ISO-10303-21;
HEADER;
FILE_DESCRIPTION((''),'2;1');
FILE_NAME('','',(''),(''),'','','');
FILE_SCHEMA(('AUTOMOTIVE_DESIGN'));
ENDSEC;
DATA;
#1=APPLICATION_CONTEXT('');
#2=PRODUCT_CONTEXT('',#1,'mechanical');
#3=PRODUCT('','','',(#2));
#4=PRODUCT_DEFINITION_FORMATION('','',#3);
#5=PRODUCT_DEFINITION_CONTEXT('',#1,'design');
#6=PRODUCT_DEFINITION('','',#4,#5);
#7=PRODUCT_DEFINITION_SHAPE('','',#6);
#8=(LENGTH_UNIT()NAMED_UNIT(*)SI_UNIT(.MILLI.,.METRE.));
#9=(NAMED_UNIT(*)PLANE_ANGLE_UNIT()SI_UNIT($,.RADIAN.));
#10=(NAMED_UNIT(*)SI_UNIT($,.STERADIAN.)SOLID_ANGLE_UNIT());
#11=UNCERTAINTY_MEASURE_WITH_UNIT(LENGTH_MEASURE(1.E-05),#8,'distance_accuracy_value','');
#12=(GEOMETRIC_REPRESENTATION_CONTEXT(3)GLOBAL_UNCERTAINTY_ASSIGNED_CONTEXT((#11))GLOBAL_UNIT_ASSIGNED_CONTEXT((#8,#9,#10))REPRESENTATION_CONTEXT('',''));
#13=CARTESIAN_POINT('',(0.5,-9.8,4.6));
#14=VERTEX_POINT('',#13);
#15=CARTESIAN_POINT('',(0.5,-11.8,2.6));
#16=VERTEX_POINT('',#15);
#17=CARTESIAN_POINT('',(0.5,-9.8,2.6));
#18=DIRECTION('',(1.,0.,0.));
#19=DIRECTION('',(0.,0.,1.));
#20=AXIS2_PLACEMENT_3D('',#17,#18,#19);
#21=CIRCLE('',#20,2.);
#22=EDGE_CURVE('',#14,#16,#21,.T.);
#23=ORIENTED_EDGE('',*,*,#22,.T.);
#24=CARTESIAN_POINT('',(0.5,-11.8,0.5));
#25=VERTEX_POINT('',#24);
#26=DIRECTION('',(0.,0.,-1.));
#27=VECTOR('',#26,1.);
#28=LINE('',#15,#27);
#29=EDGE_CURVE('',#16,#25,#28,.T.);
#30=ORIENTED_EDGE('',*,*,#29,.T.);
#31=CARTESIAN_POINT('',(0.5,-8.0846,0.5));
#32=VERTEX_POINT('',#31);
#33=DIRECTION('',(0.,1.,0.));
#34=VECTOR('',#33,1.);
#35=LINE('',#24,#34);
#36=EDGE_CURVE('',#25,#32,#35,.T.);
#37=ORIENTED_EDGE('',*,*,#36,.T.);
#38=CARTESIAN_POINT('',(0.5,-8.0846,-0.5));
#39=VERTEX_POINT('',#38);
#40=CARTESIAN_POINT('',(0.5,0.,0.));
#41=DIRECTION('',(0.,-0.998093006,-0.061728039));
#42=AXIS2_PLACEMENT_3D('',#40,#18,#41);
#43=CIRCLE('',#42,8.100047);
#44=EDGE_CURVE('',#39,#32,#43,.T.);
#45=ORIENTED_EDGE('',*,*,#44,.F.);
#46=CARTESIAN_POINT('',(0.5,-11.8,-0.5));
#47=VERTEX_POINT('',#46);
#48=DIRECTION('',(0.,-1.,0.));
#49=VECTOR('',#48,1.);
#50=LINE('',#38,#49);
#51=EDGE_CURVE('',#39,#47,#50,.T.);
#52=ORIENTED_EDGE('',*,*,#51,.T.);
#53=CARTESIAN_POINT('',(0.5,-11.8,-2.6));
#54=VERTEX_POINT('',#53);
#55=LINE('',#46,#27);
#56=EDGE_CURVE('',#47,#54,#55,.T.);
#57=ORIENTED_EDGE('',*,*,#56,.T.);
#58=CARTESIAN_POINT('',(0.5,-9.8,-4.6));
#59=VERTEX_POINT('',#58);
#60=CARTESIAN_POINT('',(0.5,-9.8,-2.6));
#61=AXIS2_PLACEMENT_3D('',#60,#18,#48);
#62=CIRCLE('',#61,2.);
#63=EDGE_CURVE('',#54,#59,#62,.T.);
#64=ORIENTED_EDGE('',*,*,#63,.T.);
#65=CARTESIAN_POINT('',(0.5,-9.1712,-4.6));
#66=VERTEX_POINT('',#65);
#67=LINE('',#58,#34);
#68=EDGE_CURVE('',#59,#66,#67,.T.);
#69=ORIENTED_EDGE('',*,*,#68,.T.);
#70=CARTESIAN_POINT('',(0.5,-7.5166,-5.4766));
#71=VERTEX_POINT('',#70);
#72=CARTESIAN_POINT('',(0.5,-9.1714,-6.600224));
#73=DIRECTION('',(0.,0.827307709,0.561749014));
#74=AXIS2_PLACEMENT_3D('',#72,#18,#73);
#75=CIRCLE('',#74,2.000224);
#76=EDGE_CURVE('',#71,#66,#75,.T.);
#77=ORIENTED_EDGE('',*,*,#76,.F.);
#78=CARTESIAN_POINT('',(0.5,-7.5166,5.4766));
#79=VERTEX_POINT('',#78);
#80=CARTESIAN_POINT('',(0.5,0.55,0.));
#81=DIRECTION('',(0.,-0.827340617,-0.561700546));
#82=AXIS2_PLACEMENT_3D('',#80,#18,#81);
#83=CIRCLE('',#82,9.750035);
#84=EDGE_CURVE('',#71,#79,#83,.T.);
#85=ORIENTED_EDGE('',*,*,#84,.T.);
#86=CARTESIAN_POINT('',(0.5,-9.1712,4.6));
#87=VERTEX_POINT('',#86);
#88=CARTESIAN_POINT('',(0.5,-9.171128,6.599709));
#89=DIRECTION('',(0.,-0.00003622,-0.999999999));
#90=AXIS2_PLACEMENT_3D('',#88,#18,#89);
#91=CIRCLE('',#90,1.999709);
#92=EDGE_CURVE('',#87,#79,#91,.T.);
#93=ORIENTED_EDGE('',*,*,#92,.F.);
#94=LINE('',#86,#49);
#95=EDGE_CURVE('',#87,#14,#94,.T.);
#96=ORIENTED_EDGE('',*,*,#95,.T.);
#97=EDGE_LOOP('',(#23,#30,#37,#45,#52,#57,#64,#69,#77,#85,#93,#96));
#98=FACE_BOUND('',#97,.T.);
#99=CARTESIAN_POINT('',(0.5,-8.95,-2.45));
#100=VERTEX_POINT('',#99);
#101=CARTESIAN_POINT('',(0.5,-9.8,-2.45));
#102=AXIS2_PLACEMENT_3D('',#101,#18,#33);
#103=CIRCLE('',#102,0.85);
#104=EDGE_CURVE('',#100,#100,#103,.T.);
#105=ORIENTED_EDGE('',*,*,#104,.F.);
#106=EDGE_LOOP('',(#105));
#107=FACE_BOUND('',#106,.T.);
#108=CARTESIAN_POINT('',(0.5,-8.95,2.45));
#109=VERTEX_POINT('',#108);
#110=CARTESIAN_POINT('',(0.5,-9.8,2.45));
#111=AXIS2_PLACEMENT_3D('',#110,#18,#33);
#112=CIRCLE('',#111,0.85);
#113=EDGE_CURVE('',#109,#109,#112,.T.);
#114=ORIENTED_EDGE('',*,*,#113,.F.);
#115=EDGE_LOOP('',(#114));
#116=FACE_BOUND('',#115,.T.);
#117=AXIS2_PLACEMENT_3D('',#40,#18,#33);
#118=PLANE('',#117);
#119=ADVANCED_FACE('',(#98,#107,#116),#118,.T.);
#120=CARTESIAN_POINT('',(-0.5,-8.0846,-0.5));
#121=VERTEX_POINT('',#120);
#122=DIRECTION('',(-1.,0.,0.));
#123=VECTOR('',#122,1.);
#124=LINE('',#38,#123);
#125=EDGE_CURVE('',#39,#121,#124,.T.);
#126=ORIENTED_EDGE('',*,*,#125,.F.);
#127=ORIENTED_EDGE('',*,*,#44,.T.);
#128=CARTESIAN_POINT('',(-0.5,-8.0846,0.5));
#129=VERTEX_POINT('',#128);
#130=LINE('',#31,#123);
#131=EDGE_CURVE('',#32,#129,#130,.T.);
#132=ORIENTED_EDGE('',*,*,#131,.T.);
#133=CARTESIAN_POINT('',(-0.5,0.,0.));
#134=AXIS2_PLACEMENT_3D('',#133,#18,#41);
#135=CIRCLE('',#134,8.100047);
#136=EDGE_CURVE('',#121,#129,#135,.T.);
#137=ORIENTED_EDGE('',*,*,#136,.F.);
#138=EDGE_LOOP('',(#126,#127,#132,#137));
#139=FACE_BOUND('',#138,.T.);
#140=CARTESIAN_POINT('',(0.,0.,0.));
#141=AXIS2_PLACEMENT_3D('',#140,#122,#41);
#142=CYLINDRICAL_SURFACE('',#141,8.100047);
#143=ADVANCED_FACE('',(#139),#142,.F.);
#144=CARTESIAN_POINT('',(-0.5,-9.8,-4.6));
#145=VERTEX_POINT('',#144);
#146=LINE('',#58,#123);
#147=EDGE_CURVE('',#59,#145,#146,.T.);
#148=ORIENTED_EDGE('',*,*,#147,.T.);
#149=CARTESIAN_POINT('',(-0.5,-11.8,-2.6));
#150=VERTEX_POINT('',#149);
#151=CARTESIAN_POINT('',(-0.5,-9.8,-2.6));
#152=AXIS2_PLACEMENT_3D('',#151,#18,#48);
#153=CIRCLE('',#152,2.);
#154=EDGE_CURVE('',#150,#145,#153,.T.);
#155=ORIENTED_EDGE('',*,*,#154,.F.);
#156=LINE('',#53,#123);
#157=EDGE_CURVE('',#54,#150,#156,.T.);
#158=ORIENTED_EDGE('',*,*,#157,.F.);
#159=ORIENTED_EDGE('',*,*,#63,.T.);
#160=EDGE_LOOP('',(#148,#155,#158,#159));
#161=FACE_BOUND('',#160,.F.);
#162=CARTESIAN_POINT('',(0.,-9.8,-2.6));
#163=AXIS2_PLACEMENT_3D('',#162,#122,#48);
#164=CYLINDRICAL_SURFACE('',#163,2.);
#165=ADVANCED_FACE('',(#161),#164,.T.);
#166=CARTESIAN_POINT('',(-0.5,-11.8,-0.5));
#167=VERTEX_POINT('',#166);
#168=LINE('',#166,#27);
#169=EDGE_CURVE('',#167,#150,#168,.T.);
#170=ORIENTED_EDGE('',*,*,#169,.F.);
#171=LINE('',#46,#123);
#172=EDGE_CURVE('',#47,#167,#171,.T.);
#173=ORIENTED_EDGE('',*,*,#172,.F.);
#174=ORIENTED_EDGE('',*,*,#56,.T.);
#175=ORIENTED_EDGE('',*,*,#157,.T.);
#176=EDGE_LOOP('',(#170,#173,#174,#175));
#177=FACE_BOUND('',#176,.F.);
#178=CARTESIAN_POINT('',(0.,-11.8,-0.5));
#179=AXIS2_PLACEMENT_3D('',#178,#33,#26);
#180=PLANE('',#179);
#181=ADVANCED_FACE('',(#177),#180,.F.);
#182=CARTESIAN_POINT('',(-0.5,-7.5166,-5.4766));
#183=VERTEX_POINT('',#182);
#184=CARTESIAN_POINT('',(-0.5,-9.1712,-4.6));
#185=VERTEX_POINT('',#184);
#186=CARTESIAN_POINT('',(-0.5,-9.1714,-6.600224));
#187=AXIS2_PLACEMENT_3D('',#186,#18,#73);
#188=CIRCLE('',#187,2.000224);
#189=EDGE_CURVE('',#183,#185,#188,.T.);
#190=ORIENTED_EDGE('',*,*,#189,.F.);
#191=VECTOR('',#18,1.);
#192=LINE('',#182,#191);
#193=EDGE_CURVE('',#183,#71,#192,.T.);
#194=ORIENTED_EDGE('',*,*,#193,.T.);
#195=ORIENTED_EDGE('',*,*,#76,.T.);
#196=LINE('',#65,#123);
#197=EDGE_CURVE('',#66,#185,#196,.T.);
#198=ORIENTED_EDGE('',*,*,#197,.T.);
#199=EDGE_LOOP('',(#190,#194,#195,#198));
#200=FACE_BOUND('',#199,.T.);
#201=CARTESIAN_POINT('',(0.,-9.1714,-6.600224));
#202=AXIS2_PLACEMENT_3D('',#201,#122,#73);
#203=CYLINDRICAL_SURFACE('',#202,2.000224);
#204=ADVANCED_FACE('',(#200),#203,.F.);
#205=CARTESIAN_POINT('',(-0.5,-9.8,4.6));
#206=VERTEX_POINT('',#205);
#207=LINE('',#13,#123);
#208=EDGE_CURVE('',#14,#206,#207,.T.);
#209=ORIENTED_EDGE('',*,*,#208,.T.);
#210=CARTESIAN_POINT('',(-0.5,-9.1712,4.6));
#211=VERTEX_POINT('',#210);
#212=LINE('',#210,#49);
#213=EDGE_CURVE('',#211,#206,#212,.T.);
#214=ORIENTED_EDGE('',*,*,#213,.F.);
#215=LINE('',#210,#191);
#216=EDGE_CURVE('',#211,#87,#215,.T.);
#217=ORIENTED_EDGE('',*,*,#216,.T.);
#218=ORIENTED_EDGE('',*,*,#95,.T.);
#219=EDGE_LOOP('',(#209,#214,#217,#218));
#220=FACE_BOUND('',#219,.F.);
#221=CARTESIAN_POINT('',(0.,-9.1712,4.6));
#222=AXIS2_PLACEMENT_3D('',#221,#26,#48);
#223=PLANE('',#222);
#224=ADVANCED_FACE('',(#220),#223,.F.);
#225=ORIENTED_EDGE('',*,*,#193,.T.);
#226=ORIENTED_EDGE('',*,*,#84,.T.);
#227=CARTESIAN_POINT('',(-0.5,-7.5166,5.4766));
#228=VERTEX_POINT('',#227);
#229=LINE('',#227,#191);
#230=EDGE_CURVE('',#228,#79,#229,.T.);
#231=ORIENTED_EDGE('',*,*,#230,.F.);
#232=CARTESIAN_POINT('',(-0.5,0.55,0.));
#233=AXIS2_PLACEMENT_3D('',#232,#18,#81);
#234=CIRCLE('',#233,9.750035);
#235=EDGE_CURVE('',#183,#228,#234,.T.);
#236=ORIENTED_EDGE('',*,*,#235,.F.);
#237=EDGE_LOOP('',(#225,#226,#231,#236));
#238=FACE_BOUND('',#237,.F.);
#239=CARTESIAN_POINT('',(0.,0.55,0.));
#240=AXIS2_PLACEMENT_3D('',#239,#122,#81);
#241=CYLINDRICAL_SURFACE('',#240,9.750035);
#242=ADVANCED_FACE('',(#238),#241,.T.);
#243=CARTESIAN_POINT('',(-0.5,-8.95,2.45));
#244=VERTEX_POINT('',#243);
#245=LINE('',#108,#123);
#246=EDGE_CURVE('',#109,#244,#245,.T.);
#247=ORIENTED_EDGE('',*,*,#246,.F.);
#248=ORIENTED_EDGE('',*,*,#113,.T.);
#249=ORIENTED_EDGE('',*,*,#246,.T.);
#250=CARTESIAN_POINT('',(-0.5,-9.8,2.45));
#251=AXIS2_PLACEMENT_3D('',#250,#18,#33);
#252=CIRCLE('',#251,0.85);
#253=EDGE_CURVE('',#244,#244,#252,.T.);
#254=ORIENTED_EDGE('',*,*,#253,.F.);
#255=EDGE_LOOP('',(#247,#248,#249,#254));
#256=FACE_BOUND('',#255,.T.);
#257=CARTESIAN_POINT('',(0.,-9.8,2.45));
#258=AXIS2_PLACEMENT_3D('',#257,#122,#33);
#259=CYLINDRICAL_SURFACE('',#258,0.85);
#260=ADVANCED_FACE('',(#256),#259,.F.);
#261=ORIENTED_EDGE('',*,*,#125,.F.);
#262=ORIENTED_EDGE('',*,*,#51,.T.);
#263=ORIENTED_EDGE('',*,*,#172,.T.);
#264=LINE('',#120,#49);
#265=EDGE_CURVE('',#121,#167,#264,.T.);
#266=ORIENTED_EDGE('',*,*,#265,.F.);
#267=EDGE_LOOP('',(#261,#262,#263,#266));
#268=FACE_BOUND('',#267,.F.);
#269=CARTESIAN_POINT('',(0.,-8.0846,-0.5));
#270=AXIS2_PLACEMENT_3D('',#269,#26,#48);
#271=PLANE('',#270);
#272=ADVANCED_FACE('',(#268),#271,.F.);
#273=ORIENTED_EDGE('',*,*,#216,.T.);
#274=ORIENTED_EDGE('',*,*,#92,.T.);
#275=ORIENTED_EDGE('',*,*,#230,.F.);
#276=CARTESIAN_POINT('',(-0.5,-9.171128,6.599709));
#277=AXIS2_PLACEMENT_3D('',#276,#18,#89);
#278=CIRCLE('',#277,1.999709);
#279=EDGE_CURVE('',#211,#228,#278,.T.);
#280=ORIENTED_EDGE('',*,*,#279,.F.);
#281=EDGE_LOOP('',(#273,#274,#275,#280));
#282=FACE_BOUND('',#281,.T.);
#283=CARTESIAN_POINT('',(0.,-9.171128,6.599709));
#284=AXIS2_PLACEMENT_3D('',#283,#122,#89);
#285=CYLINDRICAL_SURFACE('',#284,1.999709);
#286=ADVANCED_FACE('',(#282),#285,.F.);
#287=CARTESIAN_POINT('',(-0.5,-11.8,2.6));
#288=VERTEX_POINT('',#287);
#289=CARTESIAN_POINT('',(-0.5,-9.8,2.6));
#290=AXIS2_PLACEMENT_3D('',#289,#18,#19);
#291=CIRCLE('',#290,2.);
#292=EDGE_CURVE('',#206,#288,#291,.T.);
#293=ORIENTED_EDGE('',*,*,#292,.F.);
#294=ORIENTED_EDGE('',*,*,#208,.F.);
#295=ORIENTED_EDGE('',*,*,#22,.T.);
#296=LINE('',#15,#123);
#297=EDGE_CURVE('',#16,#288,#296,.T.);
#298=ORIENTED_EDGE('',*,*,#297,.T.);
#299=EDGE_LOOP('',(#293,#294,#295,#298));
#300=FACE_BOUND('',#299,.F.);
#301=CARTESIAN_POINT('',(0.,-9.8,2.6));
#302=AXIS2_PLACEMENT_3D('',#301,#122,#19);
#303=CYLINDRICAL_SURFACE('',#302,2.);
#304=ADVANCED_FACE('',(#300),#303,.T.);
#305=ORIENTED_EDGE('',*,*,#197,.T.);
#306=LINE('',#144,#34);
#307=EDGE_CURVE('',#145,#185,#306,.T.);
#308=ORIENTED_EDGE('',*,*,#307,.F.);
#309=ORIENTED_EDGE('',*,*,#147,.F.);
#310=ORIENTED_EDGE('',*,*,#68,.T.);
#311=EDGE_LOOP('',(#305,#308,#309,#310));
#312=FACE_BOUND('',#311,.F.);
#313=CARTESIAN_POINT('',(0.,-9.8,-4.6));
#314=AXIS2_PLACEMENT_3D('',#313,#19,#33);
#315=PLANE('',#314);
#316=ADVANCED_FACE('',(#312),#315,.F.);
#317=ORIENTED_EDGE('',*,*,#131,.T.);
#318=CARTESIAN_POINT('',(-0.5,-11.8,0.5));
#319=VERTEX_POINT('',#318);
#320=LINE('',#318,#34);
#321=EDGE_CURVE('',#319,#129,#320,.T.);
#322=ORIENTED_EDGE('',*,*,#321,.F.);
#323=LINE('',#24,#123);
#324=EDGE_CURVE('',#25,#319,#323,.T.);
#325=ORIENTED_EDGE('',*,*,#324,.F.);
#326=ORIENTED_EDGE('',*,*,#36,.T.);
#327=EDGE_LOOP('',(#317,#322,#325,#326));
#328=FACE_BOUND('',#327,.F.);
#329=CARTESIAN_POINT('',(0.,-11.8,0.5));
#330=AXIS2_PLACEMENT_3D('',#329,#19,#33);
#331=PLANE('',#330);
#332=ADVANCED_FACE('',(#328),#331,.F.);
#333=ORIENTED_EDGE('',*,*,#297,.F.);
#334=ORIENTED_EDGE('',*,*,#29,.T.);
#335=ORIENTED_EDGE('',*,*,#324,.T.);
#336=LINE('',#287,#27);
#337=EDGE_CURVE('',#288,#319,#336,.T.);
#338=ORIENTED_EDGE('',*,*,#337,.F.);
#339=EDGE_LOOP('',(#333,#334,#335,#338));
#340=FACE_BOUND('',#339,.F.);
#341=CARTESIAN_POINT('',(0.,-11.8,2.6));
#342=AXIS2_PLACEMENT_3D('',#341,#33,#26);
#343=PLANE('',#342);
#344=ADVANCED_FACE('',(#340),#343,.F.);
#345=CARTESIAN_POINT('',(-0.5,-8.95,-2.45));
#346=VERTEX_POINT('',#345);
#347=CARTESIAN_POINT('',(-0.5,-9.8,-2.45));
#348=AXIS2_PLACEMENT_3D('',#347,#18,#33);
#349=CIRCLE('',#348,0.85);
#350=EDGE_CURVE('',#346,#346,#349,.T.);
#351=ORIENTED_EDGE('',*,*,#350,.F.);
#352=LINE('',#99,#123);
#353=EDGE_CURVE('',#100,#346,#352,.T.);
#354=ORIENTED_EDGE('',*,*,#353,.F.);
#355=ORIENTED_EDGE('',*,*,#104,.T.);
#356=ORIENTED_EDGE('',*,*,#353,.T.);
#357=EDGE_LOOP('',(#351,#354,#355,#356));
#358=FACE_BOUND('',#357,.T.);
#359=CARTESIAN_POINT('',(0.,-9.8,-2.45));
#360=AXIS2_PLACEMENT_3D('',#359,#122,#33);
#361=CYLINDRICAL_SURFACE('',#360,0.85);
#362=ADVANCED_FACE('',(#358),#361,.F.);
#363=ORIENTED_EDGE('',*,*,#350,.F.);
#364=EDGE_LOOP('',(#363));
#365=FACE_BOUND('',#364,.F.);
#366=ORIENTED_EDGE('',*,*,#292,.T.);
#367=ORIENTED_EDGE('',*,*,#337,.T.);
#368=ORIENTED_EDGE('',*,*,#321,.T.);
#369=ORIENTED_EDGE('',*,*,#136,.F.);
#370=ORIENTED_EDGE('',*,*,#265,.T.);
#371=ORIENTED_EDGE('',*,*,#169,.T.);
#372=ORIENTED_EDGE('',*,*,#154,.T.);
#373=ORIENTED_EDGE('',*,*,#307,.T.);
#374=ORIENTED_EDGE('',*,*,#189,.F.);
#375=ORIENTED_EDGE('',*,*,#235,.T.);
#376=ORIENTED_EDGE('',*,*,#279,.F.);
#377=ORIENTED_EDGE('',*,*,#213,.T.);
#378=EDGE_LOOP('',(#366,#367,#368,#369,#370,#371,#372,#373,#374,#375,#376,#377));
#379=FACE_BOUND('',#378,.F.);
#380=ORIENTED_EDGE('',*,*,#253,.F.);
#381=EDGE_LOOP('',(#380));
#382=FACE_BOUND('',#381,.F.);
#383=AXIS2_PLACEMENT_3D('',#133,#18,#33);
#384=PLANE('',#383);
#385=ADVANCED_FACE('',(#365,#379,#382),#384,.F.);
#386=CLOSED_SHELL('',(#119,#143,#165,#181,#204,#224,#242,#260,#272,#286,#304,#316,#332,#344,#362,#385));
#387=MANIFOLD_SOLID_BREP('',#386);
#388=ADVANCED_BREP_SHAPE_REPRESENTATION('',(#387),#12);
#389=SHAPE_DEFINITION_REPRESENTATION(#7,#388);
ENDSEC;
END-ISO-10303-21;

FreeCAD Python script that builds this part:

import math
import FreeCAD as App
import Part
import Sketcher
from FreeCAD import Vector
Q = App.Units.Quantity

doc = App.newDocument("Part")
params = doc.addObject("Spreadsheet::Sheet", "Params")
for row, (alias, value) in enumerate([
    ("sketch1_radius", "2 mm"),
    ("sketch1_diameter", "1.7 mm"),
    ("sketch1_radius2", "8.1 mm"),
    ("sketch1_radius3", "9.75 mm"),
    ("sketch1_height", "2.1 mm"),
    ("pad1_length", "1 mm"),
], start=1):
    params.set(f"A{row}", alias)
    params.set(f"B{row}", "=" + value)
    params.setAlias(f"B{row}", alias)

body = doc.addObject("PartDesign::Body", "Body")

sketch1 = doc.addObject("Sketcher::SketchObject", "Sketch")
body.addObject(sketch1)
sketch1.AttachmentSupport = (doc.YZ_Plane, [""])
sketch1.MapMode = "FlatFace"
sketch1.addGeometry([
    Part.ArcOfCircle(Part.Circle(Vector(-9.1712, -6.6, 0), Vector(0, 0, 1), 1.999932), math.radians(34.174765), math.radians(90)),
    Part.ArcOfCircle(Part.Circle(Vector(0.55, 0, 0), Vector(0, 0, 1), 9.750035), math.radians(-145.826516), math.radians(145.826516)),
    Part.ArcOfCircle(Part.Circle(Vector(-9.1712, 6.6, 0), Vector(0, 0, 1), 2), math.radians(-90), math.radians(-34.174765)),
    Part.LineSegment(Vector(-9.1712, 4.6, 0), Vector(-9.8, 4.6, 0)),
    Part.ArcOfCircle(Part.Circle(Vector(-9.8, 2.6, 0), Vector(0, 0, 1), 2), math.radians(90), math.radians(180)),
    Part.LineSegment(Vector(-11.8, 2.6, 0), Vector(-11.8, 0.5, 0)),
    Part.LineSegment(Vector(-11.8, 0.5, 0), Vector(-8.0846, 0.5, 0)),
    Part.ArcOfCircle(Part.Circle(Vector(0, 0, 0), Vector(0, 0, 1), 8.100047), math.radians(-176.460994), math.radians(176.460994)),
    Part.LineSegment(Vector(-8.0846, -0.5, 0), Vector(-11.8, -0.5, 0)),
    Part.LineSegment(Vector(-11.8, -0.5, 0), Vector(-11.8, -2.6, 0)),
    Part.ArcOfCircle(Part.Circle(Vector(-9.8, -2.6, 0), Vector(0, 0, 1), 2), math.radians(180), math.radians(270)),
    Part.LineSegment(Vector(-9.8, -4.6, 0), Vector(-9.1712, -4.6, 0)),
    Part.Circle(Vector(-9.8, -2.45, 0), Vector(0, 0, 1), 0.85),
    Part.Circle(Vector(-9.8, 2.45, 0), Vector(0, 0, 1), 0.85),
], False)
sketch1.addConstraint([
    Sketcher.Constraint("Tangent", 0, 1, 1, 1),
    Sketcher.Constraint("Tangent", 1, 2, 2, 2),
    Sketcher.Constraint("Tangent", 2, 1, 3, 1),
    Sketcher.Constraint("Tangent", 3, 2, 4, 1),
    Sketcher.Constraint("Tangent", 4, 2, 5, 1),
    Sketcher.Constraint("Coincident", 5, 2, 6, 1),
    Sketcher.Constraint("Coincident", 6, 2, 7, 2),
    Sketcher.Constraint("Coincident", 7, 1, 8, 1),
    Sketcher.Constraint("Coincident", 8, 2, 9, 1),
    Sketcher.Constraint("Tangent", 9, 2, 10, 1),
    Sketcher.Constraint("Tangent", 10, 2, 11, 1),
    Sketcher.Constraint("Tangent", 11, 2, 0, 2),
    Sketcher.Constraint("Horizontal", 3),
    Sketcher.Constraint("Vertical", 5),
    Sketcher.Constraint("Horizontal", 6),
    Sketcher.Constraint("Horizontal", 8),
    Sketcher.Constraint("Vertical", 9),
    Sketcher.Constraint("Horizontal", 11),
    Sketcher.Constraint("Coincident", 7, 3, -1, 1),
    Sketcher.Constraint("Equal", 0, 2),
    Sketcher.Constraint("Equal", 2, 4),
    Sketcher.Constraint("Equal", 4, 10),
    Sketcher.Constraint("Equal", 12, 13),
    Sketcher.Constraint("Symmetric", 0, 3, 2, 3, -1),
    Sketcher.Constraint("Symmetric", 12, 3, 13, 3, -1),
    Sketcher.Constraint("Symmetric", 5, 2, 8, 2, -1),
    Sketcher.Constraint("Vertical", 10, 3, 12, 3),
    Sketcher.Constraint("Radius", 0, Q("2 mm")),
    Sketcher.Constraint("Diameter", 12, Q("1.7 mm")),
    Sketcher.Constraint("Radius", 7, Q("8.1 mm")),
    Sketcher.Constraint("Radius", 1, Q("9.75 mm")),
    Sketcher.Constraint("DistanceY", 5, 2, 5, 1, Q("2.1 mm")),
    Sketcher.Constraint("DistanceY", 7, 1, 6, 2, Q("1 mm")),
    Sketcher.Constraint("DistanceX", 4, 3, -1, 1, Q("9.8 mm")),
    Sketcher.Constraint("DistanceY", 12, 3, 13, 3, Q("4.9 mm")),
    Sketcher.Constraint("DistanceX", -1, 1, 1, 3, Q("0.55 mm")),
])
sketch1.setExpression("Constraints[27]", "Params.sketch1_radius")
sketch1.setExpression("Constraints[28]", "Params.sketch1_diameter")
sketch1.setExpression("Constraints[29]", "Params.sketch1_radius2")
sketch1.setExpression("Constraints[30]", "Params.sketch1_radius3")
sketch1.setExpression("Constraints[31]", "Params.sketch1_height")
pad1 = doc.addObject("PartDesign::Pad", "Pad")
body.addObject(pad1)
pad1.Profile = sketch1
pad1.setExpression("Length", "Params.pad1_length")
pad1.Midplane = True

doc.recompute()
